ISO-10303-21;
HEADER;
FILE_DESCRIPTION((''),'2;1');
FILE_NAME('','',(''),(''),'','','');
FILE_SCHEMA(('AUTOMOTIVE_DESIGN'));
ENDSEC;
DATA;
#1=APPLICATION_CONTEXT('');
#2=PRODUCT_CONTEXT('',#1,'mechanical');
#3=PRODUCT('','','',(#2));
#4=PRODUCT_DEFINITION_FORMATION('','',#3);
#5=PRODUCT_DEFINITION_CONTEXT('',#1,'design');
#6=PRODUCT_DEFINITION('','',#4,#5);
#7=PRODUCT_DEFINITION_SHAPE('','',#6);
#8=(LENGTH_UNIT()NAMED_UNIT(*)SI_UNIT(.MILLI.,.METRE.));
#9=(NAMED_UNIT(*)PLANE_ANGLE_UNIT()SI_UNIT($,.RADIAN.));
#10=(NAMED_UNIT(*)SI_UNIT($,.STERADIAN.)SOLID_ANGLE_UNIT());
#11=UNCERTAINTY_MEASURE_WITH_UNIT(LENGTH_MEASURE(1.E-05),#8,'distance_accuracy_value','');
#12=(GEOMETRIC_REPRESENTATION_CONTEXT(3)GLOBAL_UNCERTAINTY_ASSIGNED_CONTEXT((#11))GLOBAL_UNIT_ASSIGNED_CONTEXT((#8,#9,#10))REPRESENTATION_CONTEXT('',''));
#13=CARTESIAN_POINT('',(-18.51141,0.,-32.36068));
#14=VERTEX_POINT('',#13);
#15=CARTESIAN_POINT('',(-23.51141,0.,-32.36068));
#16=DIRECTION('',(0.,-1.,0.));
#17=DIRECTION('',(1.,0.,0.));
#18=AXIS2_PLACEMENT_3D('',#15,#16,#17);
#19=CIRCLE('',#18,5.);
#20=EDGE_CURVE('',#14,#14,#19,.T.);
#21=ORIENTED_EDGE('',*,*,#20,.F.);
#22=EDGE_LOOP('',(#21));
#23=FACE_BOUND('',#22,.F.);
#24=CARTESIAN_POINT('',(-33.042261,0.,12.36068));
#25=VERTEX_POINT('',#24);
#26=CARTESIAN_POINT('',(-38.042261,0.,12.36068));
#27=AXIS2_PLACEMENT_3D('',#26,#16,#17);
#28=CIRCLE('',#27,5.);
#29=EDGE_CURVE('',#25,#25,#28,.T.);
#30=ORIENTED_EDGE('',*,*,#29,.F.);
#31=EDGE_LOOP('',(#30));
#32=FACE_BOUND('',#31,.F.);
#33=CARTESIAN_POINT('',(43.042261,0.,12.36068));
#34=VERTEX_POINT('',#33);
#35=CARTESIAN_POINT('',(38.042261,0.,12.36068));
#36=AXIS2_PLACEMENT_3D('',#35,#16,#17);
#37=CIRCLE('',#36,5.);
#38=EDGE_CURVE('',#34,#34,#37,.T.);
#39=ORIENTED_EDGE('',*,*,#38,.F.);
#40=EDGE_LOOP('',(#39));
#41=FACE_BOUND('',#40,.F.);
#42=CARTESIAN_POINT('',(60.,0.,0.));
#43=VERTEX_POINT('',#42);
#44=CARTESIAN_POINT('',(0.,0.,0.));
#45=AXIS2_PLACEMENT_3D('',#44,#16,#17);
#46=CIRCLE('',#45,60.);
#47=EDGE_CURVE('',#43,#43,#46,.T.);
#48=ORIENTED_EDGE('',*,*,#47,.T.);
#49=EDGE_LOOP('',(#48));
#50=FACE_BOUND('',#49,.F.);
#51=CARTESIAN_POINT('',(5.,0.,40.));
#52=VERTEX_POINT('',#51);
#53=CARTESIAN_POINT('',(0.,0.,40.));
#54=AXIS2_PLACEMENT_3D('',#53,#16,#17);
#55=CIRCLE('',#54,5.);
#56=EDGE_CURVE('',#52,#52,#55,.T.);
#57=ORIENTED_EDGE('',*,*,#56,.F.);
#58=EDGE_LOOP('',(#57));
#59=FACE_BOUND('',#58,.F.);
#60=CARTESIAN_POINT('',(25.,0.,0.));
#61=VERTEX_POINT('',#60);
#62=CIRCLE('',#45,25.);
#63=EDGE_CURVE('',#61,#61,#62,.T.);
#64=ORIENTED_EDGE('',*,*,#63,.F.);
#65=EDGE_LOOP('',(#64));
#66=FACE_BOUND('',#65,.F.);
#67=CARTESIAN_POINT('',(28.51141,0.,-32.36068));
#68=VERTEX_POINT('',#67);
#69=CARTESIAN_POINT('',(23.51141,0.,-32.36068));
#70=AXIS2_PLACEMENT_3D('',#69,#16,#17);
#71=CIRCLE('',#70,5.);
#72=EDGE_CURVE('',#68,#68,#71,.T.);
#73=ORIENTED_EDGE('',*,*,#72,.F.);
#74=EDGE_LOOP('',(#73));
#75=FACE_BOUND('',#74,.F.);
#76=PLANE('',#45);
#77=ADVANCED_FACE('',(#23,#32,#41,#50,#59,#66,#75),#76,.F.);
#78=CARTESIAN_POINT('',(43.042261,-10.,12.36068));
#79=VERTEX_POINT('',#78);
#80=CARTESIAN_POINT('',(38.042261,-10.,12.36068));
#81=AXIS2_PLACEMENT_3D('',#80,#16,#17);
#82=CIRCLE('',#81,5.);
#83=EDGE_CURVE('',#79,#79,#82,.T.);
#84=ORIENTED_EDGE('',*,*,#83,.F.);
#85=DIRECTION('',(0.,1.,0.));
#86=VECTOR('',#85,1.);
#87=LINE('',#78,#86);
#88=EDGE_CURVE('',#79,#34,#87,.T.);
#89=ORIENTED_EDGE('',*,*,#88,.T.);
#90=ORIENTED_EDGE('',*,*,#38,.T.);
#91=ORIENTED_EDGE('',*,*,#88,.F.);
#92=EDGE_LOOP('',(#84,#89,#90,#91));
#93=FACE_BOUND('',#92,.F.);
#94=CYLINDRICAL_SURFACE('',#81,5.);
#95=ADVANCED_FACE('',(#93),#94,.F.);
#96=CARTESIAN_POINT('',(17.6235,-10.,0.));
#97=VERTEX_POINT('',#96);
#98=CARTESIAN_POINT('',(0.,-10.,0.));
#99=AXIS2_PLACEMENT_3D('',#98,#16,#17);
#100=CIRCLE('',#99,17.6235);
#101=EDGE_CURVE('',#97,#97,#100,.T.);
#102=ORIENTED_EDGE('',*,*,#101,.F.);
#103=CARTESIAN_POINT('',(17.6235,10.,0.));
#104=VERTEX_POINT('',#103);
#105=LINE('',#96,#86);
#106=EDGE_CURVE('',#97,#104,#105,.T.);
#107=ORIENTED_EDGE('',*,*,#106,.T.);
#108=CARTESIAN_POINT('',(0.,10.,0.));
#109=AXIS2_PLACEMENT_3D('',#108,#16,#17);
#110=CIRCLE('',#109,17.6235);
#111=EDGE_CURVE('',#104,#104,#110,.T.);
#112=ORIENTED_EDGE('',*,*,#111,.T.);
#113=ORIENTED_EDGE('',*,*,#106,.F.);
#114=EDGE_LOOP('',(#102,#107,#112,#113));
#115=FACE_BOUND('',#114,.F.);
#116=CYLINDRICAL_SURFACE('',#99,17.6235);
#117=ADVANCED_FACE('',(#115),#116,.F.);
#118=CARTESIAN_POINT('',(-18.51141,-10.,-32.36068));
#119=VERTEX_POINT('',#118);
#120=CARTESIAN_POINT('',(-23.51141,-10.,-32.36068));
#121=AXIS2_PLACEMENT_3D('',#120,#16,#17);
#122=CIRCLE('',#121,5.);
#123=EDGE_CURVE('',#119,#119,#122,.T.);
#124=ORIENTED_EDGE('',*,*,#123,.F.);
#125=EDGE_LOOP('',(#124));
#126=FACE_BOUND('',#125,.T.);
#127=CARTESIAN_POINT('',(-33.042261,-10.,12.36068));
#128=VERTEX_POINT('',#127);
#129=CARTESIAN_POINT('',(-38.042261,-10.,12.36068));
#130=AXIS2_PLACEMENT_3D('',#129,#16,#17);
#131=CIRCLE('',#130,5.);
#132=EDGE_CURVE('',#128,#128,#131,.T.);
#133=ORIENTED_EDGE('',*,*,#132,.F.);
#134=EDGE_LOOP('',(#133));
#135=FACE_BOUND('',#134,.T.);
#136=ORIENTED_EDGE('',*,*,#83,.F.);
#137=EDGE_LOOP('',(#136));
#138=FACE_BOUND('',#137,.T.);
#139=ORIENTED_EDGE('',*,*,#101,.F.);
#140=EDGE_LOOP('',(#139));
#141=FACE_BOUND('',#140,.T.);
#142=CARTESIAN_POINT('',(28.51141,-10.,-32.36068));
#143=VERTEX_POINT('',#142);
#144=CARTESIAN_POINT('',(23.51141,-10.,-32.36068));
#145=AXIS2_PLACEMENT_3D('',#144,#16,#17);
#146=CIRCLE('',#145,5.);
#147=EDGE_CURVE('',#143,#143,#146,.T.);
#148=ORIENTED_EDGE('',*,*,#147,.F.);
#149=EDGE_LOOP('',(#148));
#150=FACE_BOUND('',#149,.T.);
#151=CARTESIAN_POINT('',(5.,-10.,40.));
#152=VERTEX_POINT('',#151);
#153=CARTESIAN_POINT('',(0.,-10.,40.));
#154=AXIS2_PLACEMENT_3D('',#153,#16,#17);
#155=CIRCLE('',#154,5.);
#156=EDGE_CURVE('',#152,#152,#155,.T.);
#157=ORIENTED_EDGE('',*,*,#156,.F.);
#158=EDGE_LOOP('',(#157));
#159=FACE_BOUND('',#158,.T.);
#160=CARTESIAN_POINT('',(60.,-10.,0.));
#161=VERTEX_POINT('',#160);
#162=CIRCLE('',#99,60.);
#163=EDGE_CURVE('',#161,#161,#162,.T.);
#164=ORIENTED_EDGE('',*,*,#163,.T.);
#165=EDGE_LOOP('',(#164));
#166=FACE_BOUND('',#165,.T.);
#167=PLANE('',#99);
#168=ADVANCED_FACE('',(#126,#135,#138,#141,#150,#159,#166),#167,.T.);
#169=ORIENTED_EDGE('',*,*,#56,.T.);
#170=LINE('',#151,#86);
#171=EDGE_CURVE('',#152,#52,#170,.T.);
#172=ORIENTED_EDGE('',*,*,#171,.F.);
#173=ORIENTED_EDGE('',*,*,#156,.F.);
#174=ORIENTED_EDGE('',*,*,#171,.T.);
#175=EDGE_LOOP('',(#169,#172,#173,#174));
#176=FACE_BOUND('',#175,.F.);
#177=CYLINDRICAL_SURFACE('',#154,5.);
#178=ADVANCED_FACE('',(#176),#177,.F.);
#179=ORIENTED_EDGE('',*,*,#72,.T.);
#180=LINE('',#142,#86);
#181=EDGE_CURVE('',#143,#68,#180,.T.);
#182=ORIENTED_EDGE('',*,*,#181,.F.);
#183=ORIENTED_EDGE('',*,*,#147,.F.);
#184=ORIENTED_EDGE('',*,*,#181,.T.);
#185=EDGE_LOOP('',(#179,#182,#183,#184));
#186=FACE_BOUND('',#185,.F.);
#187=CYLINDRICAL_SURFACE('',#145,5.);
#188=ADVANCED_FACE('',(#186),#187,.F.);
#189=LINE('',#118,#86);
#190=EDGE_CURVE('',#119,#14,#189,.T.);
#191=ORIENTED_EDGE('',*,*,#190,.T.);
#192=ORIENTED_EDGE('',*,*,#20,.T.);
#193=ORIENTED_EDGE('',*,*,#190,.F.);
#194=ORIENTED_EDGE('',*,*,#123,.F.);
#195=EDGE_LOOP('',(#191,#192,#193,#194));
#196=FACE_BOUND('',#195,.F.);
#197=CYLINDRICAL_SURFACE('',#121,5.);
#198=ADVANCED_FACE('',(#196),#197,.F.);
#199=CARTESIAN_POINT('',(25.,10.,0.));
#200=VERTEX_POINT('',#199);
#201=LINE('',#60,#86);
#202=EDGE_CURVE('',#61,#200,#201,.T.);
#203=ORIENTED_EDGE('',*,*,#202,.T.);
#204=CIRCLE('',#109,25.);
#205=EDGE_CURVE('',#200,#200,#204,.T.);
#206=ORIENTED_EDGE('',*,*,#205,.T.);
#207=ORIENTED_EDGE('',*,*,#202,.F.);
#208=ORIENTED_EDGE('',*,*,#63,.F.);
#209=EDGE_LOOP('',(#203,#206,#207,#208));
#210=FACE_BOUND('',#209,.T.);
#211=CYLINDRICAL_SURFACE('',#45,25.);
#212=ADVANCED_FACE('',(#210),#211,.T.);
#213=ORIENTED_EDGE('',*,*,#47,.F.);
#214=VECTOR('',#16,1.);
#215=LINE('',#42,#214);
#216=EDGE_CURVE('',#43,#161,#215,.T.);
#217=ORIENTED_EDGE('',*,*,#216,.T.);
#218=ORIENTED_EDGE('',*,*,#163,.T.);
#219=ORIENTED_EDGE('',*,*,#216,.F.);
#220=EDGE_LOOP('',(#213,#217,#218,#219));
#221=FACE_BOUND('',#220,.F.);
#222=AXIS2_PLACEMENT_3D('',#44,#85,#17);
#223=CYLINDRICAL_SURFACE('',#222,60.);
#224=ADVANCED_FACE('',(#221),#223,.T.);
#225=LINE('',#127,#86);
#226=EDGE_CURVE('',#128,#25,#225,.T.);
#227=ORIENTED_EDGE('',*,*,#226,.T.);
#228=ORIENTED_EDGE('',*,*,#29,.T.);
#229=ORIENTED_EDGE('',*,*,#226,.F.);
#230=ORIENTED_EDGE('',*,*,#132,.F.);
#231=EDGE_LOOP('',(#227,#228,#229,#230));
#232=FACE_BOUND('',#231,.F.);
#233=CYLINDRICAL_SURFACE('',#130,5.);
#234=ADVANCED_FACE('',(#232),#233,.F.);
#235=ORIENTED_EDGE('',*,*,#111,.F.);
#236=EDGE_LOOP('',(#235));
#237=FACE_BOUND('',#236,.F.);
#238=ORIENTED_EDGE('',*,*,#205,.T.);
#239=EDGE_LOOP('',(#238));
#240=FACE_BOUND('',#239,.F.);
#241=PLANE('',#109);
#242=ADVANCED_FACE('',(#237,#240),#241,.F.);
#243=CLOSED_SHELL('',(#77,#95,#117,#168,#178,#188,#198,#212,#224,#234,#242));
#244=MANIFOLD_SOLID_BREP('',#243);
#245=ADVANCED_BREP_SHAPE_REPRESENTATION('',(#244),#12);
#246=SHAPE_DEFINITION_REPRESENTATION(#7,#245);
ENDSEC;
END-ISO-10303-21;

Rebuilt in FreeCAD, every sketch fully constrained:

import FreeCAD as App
import Part
import Sketcher
from FreeCAD import Vector

doc = App.newDocument("Part")
body = doc.addObject("PartDesign::Body", "Body")

sketch1 = doc.addObject("Sketcher::SketchObject", "Sketch")
body.addObject(sketch1)
sketch1.AttachmentSupport = (doc.XZ_Plane, [""])
sketch1.MapMode = "FlatFace"
sketch1.addGeometry(Part.Circle(Vector(0, 0, 0), Vector(0, 0, 1), 25), False)
sketch1.addConstraint([
    Sketcher.Constraint("Coincident", 0, 3, -1, 1),
    Sketcher.Constraint("Diameter", 0, 50.0),
])
pad1 = doc.addObject("PartDesign::Pad", "Pad")
body.addObject(pad1)
pad1.Profile = sketch1
pad1.Length = 10
pad1.Reversed = True

sketch2 = doc.addObject("Sketcher::SketchObject", "Sketch001")
body.addObject(sketch2)
sketch2.AttachmentSupport = (doc.XZ_Plane, [""])
sketch2.MapMode = "FlatFace"
sketch2.addGeometry(Part.Circle(Vector(0, 0, 0), Vector(0, 0, 1), 60), False)
sketch2.addConstraint([
    Sketcher.Constraint("Coincident", 0, 3, -1, 1),
    Sketcher.Constraint("Diameter", 0, 120.0),
])
pad2 = doc.addObject("PartDesign::Pad", "Pad001")
body.addObject(pad2)
pad2.Profile = sketch2
pad2.Length = 10

sketch3 = doc.addObject("Sketcher::SketchObject", "Sketch002")
body.addObject(sketch3)
sketch3.AttachmentSupport = (doc.XZ_Plane, [""])
sketch3.MapMode = "FlatFace"
sketch3.AttachmentOffset = App.Placement(Vector(0, 0, 10), App.Rotation())
sketch3.addGeometry([
    Part.Circle(Vector(0, 40, 0), Vector(0, 0, 1), 5),
    Part.Circle(Vector(-38, 12, 0), Vector(0, 0, 1), 5),
    Part.Circle(Vector(-24, -32, 0), Vector(0, 0, 1), 5),
    Part.Circle(Vector(24, -32, 0), Vector(0, 0, 1), 5),
    Part.Circle(Vector(38, 12, 0), Vector(0, 0, 1), 5),
], False)
sketch3.addConstraint([
    Sketcher.Constraint("Equal", 0, 1),
    Sketcher.Constraint("Equal", 1, 2),
    Sketcher.Constraint("Equal", 2, 3),
    Sketcher.Constraint("Equal", 3, 4),
    Sketcher.Constraint("Symmetric", 2, 3, 3, 3, -2),
    Sketcher.Constraint("Symmetric", 1, 3, 4, 3, -2),
    Sketcher.Constraint("PointOnObject", 0, 3, -2),
    Sketcher.Constraint("Diameter", 0, 10.0),
    Sketcher.Constraint("DistanceY", -1, 1, 0, 3, 40.0),
    Sketcher.Constraint("DistanceX", 1, 3, -1, 1, 38.042261),
    Sketcher.Constraint("DistanceY", -1, 1, 1, 3, 12.36068),
    Sketcher.Constraint("DistanceX", 2, 3, -1, 1, 23.51141),
    Sketcher.Constraint("DistanceY", 2, 3, -1, 1, 32.36068),
])
pocket1 = doc.addObject("PartDesign::Pocket", "Pocket")
body.addObject(pocket1)
pocket1.Profile = sketch3
pocket1.Type = "ThroughAll"

sketch4 = doc.addObject("Sketcher::SketchObject", "Sketch003")
body.addObject(sketch4)
sketch4.AttachmentSupport = (doc.XZ_Plane, [""])
sketch4.MapMode = "FlatFace"
sketch4.AttachmentOffset = App.Placement(Vector(0, 0, 10), App.Rotation())
sketch4.addGeometry(Part.Circle(Vector(0, 0, 0), Vector(0, 0, 1), 18), False)
sketch4.addConstraint([
    Sketcher.Constraint("Coincident", 0, 3, -1, 1),
    Sketcher.Constraint("Diameter", 0, 35.247),
])
pocket2 = doc.addObject("PartDesign::Pocket", "Pocket001")
body.addObject(pocket2)
pocket2.Profile = sketch4
pocket2.Length = 50

doc.recompute()
